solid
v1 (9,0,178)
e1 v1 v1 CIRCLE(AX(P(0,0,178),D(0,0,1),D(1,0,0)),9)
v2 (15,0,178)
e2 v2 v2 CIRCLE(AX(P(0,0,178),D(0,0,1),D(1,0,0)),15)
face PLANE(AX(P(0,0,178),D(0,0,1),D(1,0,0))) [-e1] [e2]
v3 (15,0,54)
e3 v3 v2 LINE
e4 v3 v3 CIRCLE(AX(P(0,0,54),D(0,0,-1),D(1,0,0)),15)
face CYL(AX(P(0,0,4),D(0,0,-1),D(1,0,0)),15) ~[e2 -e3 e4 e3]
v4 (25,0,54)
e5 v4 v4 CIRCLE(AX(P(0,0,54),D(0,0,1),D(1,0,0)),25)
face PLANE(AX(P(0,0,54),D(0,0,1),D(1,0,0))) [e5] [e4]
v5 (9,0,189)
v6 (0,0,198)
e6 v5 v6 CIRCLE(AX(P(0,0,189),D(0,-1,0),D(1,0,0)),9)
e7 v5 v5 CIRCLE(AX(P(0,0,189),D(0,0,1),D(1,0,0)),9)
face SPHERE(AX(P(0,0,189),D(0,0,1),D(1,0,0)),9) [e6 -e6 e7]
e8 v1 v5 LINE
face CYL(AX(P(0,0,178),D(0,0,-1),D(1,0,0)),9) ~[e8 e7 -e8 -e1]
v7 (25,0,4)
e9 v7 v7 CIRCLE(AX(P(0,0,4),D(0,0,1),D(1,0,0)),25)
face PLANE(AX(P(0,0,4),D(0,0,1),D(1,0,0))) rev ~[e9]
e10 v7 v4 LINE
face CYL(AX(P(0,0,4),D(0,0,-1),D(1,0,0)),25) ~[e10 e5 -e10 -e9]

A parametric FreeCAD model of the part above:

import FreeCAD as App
import Part
import Sketcher

V = App.Vector


def edges_at(feature, points):
    """Names of the edges that pass closest to the given points."""
    edges = feature.Shape.Edges
    near = lambda p: min(range(len(edges)), key=lambda i: edges[i].distToShape(Part.Vertex(*p))[0])
    return sorted({f"Edge{near(p) + 1}" for p in points})

doc = App.newDocument("Part")
params = doc.addObject("Spreadsheet::Sheet", "Params")
for row, (alias, value) in enumerate([
    ("sketch1_diameter", "50 mm"),
    ("pad1_length", "50 mm"),
    ("sketch2_diameter", "30 mm"),
    ("pad2_length", "174 mm"),
    ("sketch3_diameter", "18 mm"),
    ("pad3_length", "20 mm"),
    ("fillet_radius", "9 mm"),
], start=1):
    params.set(f"A{row}", alias)
    params.set(f"B{row}", "=" + value)
    params.setAlias(f"B{row}", alias)

body = doc.addObject("PartDesign::Body", "Body")

# Sketch on XY plane
sketch1 = doc.addObject("Sketcher::SketchObject", "Sketch")
body.addObject(sketch1)
sketch1.AttachmentSupport = (doc.XY_Plane, [""])
sketch1.MapMode = "FlatFace"
sketch1.AttachmentOffset = App.Placement(V(0, 0, 4), App.Rotation())
sketch1.addGeometry(Part.Circle(V(0, 0, 0), V(0, 0, 1), 25), False)
sketch1.addConstraint([
    Sketcher.Constraint("Coincident", 0, 3, -1, 1),
    Sketcher.Constraint("Diameter", 0, 50.0),
])
sketch1.setExpression("Constraints[1]", "Params.sketch1_diameter")
pad1 = doc.addObject("PartDesign::Pad", "Pad")
body.addObject(pad1)
pad1.Profile = sketch1
pad1.setExpression("Length", "Params.pad1_length")

# Sketch on XY plane
sketch2 = doc.addObject("Sketcher::SketchObject", "Sketch001")
body.addObject(sketch2)
sketch2.AttachmentSupport = (doc.XY_Plane, [""])
sketch2.MapMode = "FlatFace"
sketch2.AttachmentOffset = App.Placement(V(0, 0, 4), App.Rotation())
sketch2.addGeometry(Part.Circle(V(0, 0, 0), V(0, 0, 1), 15), False)
sketch2.addConstraint([
    Sketcher.Constraint("Coincident", 0, 3, -1, 1),
    Sketcher.Constraint("Diameter", 0, 30.0),
])
sketch2.setExpression("Constraints[1]", "Params.sketch2_diameter")
pad2 = doc.addObject("PartDesign::Pad", "Pad001")
body.addObject(pad2)
pad2.Profile = sketch2
pad2.setExpression("Length", "Params.pad2_length")

# Sketch on XY plane
sketch3 = doc.addObject("Sketcher::SketchObject", "Sketch002")
body.addObject(sketch3)
sketch3.AttachmentSupport = (doc.XY_Plane, [""])
sketch3.MapMode = "FlatFace"
sketch3.AttachmentOffset = App.Placement(V(0, 0, 178), App.Rotation())
sketch3.addGeometry(Part.Circle(V(0, 0, 0), V(0, 0, 1), 9), False)
sketch3.addConstraint([
    Sketcher.Constraint("Coincident", 0, 3, -1, 1),
    Sketcher.Constraint("Diameter", 0, 18.0),
])
sketch3.setExpression("Constraints[1]", "Params.sketch3_diameter")
pad3 = doc.addObject("PartDesign::Pad", "Pad002")
body.addObject(pad3)
pad3.Profile = sketch3
pad3.setExpression("Length", "Params.pad3_length")
doc.recompute()

fillet = doc.addObject("PartDesign::Fillet", "Fillet")
body.addObject(fillet)
fillet.Base = (pad3, edges_at(pad3, [(-9, 0, 198)]))
fillet.setExpression("Radius", "Params.fillet_radius")

doc.recompute()
